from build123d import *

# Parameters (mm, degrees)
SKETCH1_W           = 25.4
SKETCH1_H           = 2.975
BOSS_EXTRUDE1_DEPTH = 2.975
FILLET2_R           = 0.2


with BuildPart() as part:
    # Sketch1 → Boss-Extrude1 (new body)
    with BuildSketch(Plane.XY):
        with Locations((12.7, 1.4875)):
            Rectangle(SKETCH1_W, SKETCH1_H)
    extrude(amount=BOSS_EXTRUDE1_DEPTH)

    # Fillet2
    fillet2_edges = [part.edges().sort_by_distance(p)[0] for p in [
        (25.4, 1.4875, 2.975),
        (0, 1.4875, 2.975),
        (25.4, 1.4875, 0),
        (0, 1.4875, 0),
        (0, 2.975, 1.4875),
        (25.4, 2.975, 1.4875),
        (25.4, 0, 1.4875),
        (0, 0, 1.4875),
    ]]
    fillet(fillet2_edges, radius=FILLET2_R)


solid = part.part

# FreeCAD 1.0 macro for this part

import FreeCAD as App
import Part
import Sketcher
from FreeCAD import Vector
Q = App.Units.Quantity


def edges_at(feature, points):
    """Names of the edges that pass closest to the given points."""
    edges = feature.Shape.Edges
    near = lambda p: min(range(len(edges)), key=lambda i: edges[i].distToShape(Part.Vertex(*p))[0])
    return sorted({f"Edge{near(p) + 1}" for p in points})


def add_polygon(sketch, points):
    """Adds a closed chain of lines whose ends are joined by coincident constraints."""
    first, n = sketch.GeometryCount, len(points)
    for a, b in zip(points, points[1:] + points[:1]):
        sketch.addGeometry(Part.LineSegment(App.Vector(*a, 0), App.Vector(*b, 0)), False)
    for i in range(n):
        sketch.addConstraint(Sketcher.Constraint("Coincident", first + i, 2, first + (i + 1) % n, 1))

doc = App.newDocument("Part")
body = doc.addObject("PartDesign::Body", "Body")

# Sketch on XY plane
sketch1 = body.newObject("Sketcher::SketchObject", "Sketch")
sketch1.AttachmentSupport = (doc.getObject("XY_Plane"), [""])
sketch1.MapMode = "FlatFace"
add_polygon(sketch1, [(0, 2.975), (0, 0), (25.4, 0), (25.4, 2.975)])  # lines 0-3
sketch1.addConstraint(Sketcher.Constraint("Vertical", 0))
sketch1.addConstraint(Sketcher.Constraint("Horizontal", 1))
sketch1.addConstraint(Sketcher.Constraint("Vertical", 2))
sketch1.addConstraint(Sketcher.Constraint("Horizontal", 3))
sketch1.addConstraint(Sketcher.Constraint("Coincident", 0, 2, -1, 1))
sketch1.addConstraint(Sketcher.Constraint("DistanceX", 1, 1, 1, 2, Q("25.4 mm")))
sketch1.addConstraint(Sketcher.Constraint("DistanceY", 0, 2, 0, 1, Q("2.975 mm")))
pad1 = body.newObject("PartDesign::Pad", "Pad")
pad1.Profile = sketch1
pad1.Length = 2.975
doc.recompute()

fillet = body.newObject("PartDesign::Fillet", "Fillet")
fillet.Base = (pad1, edges_at(pad1, [
    (25.4, 1.488, 2.975),
    (0, 1.488, 2.975),
    (25.4, 1.488, 0),
    (0, 1.488, 0),
    (0, 2.975, 1.488),
    (25.4, 2.975, 1.488),
    (25.4, 0, 1.488),
    (0, 0, 1.488),
]))
fillet.Radius = 0.2

doc.recompute()
